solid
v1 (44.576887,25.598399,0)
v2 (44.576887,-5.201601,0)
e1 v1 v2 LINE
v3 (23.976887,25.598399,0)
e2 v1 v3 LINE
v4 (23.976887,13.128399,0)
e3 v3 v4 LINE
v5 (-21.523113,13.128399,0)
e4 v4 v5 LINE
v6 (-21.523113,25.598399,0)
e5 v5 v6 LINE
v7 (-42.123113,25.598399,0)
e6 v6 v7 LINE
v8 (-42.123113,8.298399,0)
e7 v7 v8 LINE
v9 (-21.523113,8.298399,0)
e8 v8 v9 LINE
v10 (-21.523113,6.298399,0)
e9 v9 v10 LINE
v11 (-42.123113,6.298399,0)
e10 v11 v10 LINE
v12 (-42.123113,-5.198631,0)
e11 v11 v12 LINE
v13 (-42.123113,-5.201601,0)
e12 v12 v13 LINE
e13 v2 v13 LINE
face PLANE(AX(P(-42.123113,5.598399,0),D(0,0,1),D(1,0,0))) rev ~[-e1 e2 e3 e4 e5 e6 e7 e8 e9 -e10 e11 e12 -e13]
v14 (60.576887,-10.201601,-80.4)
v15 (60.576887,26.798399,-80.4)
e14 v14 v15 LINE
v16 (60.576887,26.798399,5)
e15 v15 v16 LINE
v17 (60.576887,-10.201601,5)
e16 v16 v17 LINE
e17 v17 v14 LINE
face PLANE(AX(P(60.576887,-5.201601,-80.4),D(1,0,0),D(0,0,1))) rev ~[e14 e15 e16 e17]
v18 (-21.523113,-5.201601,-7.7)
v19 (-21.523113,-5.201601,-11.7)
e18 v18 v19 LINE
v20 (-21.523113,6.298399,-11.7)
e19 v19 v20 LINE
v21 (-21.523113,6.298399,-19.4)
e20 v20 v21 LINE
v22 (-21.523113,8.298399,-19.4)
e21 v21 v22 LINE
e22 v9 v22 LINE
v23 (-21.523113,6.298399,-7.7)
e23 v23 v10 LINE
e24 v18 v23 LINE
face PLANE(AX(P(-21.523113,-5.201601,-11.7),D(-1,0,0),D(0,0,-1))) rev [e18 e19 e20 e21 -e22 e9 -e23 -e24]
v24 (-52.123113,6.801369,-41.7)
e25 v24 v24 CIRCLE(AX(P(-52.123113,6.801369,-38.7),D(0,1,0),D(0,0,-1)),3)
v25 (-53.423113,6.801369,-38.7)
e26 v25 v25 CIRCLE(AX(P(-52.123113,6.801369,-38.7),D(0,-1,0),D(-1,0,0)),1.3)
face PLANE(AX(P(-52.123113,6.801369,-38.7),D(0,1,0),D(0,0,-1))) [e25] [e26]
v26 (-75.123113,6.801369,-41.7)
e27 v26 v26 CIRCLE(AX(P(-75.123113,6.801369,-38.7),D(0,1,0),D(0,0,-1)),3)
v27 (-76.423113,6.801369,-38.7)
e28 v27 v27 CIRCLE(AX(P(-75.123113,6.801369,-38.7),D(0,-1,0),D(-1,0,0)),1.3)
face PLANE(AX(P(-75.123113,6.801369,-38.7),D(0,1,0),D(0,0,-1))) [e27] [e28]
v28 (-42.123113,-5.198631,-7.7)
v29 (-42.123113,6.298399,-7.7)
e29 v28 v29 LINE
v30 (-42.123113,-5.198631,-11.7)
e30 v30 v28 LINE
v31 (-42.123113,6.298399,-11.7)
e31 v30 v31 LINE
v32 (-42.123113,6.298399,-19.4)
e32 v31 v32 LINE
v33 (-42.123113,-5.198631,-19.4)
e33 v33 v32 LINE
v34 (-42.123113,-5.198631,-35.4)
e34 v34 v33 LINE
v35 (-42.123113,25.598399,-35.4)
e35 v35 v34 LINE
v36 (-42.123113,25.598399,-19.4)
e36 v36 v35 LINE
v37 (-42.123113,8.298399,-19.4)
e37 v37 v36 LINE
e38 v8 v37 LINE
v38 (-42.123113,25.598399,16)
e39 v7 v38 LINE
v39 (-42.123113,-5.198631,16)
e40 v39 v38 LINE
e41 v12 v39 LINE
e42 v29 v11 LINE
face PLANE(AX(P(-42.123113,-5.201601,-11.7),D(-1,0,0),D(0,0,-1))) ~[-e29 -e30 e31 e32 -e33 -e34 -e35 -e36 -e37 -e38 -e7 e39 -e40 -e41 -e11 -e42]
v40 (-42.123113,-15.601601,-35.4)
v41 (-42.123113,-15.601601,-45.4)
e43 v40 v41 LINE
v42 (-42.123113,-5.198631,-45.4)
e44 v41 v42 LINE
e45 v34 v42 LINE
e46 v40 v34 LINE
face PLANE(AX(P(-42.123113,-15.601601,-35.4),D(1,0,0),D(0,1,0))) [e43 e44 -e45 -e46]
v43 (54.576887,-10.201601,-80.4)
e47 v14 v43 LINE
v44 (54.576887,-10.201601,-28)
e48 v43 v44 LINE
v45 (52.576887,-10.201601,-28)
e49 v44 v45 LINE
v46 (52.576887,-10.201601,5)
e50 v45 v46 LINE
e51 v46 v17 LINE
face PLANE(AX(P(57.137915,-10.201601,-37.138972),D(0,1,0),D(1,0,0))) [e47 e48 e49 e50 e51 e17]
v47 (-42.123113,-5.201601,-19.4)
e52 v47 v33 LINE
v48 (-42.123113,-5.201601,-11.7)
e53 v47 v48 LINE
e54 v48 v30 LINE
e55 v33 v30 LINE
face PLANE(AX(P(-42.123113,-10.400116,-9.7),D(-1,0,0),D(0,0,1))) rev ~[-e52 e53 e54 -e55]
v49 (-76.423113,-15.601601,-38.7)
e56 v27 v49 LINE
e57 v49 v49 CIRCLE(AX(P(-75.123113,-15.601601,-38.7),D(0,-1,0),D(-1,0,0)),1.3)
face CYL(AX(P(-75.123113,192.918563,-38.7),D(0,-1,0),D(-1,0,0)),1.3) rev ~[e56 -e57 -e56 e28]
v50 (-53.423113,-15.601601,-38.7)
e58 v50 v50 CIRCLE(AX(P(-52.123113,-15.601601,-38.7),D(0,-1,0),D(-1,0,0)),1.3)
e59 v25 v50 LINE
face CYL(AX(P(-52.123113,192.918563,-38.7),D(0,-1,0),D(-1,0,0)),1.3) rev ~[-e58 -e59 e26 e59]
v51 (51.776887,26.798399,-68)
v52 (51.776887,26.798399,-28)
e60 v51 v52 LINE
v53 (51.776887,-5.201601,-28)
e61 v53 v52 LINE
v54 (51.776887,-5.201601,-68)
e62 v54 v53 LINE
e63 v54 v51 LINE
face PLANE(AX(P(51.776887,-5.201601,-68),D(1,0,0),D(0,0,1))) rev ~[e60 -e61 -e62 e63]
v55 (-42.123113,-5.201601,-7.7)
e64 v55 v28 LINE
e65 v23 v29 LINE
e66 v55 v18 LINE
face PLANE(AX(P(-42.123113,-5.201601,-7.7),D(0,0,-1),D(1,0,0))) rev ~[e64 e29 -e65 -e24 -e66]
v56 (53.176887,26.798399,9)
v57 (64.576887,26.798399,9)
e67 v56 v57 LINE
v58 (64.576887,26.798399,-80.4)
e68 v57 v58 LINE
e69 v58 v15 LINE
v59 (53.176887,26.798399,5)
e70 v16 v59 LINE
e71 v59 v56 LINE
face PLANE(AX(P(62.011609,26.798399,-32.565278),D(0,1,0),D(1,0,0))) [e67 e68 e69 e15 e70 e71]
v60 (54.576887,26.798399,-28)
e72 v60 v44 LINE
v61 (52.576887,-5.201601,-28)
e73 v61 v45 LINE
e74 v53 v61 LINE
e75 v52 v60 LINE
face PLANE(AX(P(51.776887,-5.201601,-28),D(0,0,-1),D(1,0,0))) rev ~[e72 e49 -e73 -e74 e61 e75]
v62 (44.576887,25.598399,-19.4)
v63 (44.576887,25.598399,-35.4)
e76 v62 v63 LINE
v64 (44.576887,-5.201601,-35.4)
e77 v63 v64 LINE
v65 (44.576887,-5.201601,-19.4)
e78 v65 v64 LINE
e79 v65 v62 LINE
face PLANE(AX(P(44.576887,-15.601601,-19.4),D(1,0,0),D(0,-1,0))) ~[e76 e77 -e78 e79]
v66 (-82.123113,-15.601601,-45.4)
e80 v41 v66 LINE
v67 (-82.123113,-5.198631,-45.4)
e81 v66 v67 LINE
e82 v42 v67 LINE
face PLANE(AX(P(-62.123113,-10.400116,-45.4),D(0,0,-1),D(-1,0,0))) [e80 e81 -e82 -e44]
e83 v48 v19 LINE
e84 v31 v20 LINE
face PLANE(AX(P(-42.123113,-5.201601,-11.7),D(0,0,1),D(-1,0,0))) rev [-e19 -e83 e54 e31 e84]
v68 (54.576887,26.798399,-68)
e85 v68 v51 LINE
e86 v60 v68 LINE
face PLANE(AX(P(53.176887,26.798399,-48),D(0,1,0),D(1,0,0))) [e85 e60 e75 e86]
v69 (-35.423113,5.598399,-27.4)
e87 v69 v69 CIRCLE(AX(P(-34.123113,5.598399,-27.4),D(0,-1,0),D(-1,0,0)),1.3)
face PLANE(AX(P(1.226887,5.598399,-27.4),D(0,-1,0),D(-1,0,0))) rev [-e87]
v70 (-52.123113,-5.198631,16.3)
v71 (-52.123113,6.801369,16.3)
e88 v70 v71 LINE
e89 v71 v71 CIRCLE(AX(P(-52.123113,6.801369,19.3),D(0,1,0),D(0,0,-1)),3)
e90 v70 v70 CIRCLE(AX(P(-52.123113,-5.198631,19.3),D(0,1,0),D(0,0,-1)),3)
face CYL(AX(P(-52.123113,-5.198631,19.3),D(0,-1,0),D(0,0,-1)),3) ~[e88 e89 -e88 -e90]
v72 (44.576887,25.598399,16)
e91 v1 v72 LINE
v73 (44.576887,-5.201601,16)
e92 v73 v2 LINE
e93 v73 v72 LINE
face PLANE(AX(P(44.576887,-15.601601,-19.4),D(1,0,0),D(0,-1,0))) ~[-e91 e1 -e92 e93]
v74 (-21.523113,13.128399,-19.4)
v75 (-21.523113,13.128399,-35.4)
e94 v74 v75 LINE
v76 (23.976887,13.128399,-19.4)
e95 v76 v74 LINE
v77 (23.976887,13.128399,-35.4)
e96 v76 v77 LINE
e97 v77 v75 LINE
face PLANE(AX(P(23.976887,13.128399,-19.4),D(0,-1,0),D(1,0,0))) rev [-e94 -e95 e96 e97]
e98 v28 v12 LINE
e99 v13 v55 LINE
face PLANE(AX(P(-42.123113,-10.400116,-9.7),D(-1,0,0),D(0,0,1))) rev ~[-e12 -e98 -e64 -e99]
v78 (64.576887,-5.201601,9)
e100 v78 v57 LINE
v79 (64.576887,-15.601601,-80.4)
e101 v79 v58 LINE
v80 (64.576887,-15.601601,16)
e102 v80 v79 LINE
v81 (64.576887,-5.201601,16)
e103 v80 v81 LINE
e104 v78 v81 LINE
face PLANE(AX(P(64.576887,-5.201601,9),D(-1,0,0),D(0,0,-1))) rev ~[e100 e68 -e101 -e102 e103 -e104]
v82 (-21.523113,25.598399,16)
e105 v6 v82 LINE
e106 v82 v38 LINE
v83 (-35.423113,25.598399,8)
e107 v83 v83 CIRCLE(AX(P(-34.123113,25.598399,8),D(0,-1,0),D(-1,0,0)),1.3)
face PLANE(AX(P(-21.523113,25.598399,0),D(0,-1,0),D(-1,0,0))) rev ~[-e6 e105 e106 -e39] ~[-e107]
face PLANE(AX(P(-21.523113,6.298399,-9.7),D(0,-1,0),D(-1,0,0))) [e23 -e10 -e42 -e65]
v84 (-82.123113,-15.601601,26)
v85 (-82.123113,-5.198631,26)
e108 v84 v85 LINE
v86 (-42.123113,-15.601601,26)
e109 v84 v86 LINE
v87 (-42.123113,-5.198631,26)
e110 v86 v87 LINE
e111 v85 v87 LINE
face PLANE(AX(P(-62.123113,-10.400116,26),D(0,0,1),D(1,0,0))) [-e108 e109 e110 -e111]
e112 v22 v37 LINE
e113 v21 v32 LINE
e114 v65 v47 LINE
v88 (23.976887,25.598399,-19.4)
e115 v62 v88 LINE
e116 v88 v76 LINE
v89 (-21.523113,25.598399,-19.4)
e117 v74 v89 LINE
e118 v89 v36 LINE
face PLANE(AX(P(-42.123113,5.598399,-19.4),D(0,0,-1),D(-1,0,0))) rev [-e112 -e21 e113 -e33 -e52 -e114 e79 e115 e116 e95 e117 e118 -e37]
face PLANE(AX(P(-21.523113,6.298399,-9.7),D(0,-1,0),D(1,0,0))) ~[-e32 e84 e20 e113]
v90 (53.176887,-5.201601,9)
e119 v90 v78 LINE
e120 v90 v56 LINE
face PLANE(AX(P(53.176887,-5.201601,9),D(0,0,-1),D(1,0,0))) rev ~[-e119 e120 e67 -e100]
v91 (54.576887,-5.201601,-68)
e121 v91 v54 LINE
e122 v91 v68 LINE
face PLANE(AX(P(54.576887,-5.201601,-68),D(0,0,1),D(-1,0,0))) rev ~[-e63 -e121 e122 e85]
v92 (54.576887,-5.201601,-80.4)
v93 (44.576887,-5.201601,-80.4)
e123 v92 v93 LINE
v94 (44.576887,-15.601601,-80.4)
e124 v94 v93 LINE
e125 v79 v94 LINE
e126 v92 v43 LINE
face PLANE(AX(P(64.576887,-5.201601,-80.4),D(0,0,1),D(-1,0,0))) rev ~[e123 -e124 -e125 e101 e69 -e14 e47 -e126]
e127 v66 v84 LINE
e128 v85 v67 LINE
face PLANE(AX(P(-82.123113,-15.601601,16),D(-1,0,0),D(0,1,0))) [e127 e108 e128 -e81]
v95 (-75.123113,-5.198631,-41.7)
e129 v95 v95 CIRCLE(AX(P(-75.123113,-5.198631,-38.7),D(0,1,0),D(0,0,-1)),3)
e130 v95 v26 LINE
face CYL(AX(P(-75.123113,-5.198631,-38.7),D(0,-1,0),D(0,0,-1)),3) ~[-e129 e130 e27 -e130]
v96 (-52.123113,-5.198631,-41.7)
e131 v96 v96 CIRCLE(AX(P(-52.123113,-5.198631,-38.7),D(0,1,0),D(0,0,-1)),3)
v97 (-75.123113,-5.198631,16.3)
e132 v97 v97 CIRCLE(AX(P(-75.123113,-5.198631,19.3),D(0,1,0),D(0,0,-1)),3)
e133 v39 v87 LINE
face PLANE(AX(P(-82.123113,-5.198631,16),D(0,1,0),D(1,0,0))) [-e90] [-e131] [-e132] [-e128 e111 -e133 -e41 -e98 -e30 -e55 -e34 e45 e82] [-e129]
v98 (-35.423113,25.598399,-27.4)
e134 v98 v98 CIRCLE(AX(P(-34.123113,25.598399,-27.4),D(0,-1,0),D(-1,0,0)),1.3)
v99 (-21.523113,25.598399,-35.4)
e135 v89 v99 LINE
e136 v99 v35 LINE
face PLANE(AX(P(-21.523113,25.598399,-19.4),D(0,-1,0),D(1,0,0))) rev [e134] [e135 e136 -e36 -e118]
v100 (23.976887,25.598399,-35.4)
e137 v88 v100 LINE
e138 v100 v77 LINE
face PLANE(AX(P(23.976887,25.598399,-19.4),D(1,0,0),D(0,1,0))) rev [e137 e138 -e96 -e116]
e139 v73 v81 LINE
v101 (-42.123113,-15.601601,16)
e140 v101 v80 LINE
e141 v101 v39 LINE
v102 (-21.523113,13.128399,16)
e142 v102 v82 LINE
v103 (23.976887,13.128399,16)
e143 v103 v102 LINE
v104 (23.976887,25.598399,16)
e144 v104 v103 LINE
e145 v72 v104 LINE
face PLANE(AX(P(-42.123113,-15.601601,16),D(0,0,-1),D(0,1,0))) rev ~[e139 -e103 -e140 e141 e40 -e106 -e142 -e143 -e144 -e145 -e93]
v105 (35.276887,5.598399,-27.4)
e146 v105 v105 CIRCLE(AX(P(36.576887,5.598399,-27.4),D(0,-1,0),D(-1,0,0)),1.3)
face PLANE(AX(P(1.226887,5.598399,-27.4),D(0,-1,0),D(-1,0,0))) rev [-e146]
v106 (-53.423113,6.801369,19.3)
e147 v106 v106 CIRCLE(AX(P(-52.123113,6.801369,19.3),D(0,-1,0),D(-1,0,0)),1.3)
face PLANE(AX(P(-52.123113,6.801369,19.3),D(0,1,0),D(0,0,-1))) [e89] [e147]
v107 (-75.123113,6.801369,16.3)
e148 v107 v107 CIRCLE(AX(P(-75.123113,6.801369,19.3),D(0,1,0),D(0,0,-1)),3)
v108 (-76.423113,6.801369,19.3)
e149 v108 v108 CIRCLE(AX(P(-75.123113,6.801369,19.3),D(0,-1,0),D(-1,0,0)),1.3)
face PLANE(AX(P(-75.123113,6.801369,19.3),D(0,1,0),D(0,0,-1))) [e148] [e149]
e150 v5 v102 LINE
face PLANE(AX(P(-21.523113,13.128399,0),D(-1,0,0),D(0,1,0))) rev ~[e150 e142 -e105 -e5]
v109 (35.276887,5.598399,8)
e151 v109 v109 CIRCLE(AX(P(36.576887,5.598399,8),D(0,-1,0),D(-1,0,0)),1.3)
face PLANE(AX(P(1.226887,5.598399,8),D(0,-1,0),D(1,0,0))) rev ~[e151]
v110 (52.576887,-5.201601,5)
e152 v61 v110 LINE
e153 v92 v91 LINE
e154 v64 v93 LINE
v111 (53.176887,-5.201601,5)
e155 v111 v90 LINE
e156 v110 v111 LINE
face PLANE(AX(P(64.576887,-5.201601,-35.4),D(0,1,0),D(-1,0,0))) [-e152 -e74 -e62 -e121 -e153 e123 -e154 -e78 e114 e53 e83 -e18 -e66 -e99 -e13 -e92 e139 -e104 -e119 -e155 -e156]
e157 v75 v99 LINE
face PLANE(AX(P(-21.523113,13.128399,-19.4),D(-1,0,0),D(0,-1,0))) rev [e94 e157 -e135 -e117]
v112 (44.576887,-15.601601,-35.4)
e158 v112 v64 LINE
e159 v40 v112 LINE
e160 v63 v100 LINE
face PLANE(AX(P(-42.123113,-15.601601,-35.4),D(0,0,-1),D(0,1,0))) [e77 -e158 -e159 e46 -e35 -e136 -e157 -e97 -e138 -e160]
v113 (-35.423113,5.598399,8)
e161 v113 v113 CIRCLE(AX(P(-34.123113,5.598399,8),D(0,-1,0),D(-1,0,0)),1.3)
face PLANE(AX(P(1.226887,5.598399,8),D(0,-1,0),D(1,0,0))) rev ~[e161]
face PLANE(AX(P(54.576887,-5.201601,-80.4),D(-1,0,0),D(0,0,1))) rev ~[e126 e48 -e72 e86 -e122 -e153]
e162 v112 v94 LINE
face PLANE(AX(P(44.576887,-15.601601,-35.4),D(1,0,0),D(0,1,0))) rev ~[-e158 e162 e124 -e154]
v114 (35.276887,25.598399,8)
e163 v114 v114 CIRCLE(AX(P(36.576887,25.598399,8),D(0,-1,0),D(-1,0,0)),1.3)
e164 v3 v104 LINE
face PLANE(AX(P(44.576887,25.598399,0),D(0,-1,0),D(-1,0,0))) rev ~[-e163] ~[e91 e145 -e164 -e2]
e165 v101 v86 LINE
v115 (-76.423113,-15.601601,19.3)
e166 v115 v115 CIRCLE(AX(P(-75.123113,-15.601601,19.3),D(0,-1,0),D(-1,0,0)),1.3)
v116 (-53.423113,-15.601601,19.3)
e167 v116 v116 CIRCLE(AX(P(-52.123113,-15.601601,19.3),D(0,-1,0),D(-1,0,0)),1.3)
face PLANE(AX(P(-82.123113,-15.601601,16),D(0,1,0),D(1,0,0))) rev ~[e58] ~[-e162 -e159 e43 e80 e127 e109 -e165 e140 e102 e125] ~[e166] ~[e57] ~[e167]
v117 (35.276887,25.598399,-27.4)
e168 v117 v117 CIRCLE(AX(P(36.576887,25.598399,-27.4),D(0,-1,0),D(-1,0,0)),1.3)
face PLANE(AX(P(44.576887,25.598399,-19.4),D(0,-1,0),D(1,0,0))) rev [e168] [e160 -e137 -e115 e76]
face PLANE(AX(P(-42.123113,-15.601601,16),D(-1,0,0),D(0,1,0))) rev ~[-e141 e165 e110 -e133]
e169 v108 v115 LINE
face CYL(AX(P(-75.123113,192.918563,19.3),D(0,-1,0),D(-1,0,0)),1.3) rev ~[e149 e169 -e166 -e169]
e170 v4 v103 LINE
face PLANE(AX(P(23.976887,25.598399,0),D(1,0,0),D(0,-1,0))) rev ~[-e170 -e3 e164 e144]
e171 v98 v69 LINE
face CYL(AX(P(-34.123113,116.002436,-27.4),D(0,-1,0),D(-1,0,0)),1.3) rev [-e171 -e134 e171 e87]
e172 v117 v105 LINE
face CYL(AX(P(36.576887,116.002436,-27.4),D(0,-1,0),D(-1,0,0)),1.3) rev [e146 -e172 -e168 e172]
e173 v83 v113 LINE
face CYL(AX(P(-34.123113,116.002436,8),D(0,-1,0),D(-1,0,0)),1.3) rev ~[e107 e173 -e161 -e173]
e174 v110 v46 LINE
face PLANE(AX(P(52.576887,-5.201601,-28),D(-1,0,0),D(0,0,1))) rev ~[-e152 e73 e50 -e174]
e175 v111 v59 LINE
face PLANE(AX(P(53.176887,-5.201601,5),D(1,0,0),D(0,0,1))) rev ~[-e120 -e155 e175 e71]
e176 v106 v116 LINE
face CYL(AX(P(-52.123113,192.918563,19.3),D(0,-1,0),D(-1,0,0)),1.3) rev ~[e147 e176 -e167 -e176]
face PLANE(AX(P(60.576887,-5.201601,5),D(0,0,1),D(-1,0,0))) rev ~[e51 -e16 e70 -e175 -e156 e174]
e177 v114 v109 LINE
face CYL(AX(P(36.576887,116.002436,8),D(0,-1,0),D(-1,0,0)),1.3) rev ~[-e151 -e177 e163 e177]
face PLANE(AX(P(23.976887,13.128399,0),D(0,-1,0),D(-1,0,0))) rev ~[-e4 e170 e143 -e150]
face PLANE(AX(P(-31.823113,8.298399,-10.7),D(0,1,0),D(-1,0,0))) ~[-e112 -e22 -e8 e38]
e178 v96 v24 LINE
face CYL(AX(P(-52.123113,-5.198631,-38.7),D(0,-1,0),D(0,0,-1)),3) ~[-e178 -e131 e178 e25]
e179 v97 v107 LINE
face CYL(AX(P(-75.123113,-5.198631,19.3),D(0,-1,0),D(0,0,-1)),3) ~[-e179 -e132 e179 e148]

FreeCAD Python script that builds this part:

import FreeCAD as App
import Part
import Sketcher

V = App.Vector

doc = App.newDocument("Part")
body = doc.addObject("PartDesign::Body", "Body")

sketch1 = body.newObject("Sketcher::SketchObject", "Sketch")
sketch1.AttachmentSupport = (doc.getObject("XY_Plane"), [""])
sketch1.MapMode = "FlatFace"
sketch1.addGeometry([
    Part.LineSegment(V(-22, 26, 0), V(-42, 26, 0)),
    Part.LineSegment(V(-42, 26, 0), V(-42, 6, 0)),
    Part.LineSegment(V(-42, 6, 0), V(45, 6, 0)),
    Part.LineSegment(V(45, 6, 0), V(45, 26, 0)),
    Part.LineSegment(V(45, 26, 0), V(24, 26, 0)),
    Part.LineSegment(V(24, 26, 0), V(24, 13, 0)),
    Part.LineSegment(V(24, 13, 0), V(-22, 13, 0)),
    Part.LineSegment(V(-22, 13, 0), V(-22, 26, 0)),
], False)
sketch1.addConstraint([
    Sketcher.Constraint("Coincident", 0, 2, 1, 1),
    Sketcher.Constraint("Coincident", 1, 2, 2, 1),
    Sketcher.Constraint("Coincident", 2, 2, 3, 1),
    Sketcher.Constraint("Coincident", 3, 2, 4, 1),
    Sketcher.Constraint("Coincident", 4, 2, 5, 1),
    Sketcher.Constraint("Coincident", 5, 2, 6, 1),
    Sketcher.Constraint("Coincident", 6, 2, 7, 1),
    Sketcher.Constraint("Coincident", 7, 2, 0, 1),
    Sketcher.Constraint("Horizontal", 0),
    Sketcher.Constraint("Vertical", 1),
    Sketcher.Constraint("Horizontal", 2),
    Sketcher.Constraint("Vertical", 3),
    Sketcher.Constraint("Horizontal", 4),
    Sketcher.Constraint("Vertical", 5),
    Sketcher.Constraint("Horizontal", 6),
    Sketcher.Constraint("Vertical", 7),
    Sketcher.Constraint("Horizontal", 0, 2, 3, 2),
    Sketcher.Constraint("Equal", 0, 4),
    Sketcher.Constraint("DistanceY", 1, 2, 1, 1, 20.0),
    Sketcher.Constraint("DistanceX", 0, 2, 0, 1, 20.6),
    Sketcher.Constraint("DistanceX", 2, 1, 2, 2, 86.7),
    Sketcher.Constraint("DistanceY", 5, 2, 5, 1, 12.47),
    Sketcher.Constraint("DistanceY", -1, 1, 0, 2, 25.598399),
    Sketcher.Constraint("DistanceX", 0, 2, -1, 1, 42.123113),
])
pad1 = body.newObject("PartDesign::Pad", "Pad")
pad1.Profile = sketch1
pad1.Length = 16

sketch2 = body.newObject("Sketcher::SketchObject", "Sketch001")
sketch2.AttachmentSupport = (doc.getObject("XZ_Plane"), [""])
sketch2.MapMode = "FlatFace"
sketch2.AttachmentOffset = App.Placement(V(0, 0, -25.598399), App.Rotation())
sketch2.addGeometry(Part.Circle(V(36.6, 8, 0), V(0, 0, 1), 1.3), False)
sketch2.addConstraint([
    Sketcher.Constraint("Diameter", 0, 2.6),
    Sketcher.Constraint("DistanceY", -1, 1, 0, 3, 8.0),
    Sketcher.Constraint("DistanceX", -1, 1, 0, 3, 36.576887),
])
doc.recompute()
hole = body.newObject("PartDesign::Hole", "Hole")
hole.Profile = sketch2
hole.ThreadType = "None"
hole.Diameter = 2.6
hole.DepthType = "ThroughAll"
hole.Reversed = True

sketch3 = body.newObject("Sketcher::SketchObject", "Sketch002")
sketch3.AttachmentSupport = (doc.getObject("XZ_Plane"), [""])
sketch3.MapMode = "FlatFace"
sketch3.AttachmentOffset = App.Placement(V(0, 0, -25.598399), App.Rotation())
sketch3.addGeometry(Part.Circle(V(-34.1, 8, 0), V(0, 0, 1), 1.3), False)
sketch3.addConstraint([
    Sketcher.Constraint("Diameter", 0, 2.6),
    Sketcher.Constraint("DistanceY", -1, 1, 0, 3, 8.0),
    Sketcher.Constraint("DistanceX", 0, 3, -1, 1, 34.123113),
])
doc.recompute()
hole2 = body.newObject("PartDesign::Hole", "Hole001")
hole2.Profile = sketch3
hole2.ThreadType = "None"
hole2.Diameter = 2.6
hole2.DepthType = "ThroughAll"
hole2.Reversed = True

sketch4 = body.newObject("Sketcher::SketchObject", "Sketch003")
sketch4.AttachmentSupport = (doc.getObject("XZ_Plane"), [""])
sketch4.MapMode = "FlatFace"
sketch4.AttachmentOffset = App.Placement(V(0, 0, -5.598399), App.Rotation())
sketch4.addGeometry([
    Part.LineSegment(V(-42, 16, 0), V(-42, 0, 0)),
    Part.LineSegment(V(-42, 0, 0), V(45, 0, 0)),
    Part.LineSegment(V(45, 0, 0), V(45, 16, 0)),
    Part.LineSegment(V(45, 16, 0), V(-42, 16, 0)),
], False)
sketch4.addConstraint([
    Sketcher.Constraint("Coincident", 0, 2, 1, 1),
    Sketcher.Constraint("Coincident", 1, 2, 2, 1),
    Sketcher.Constraint("Coincident", 2, 2, 3, 1),
    Sketcher.Constraint("Coincident", 3, 2, 0, 1),
    Sketcher.Constraint("Vertical", 0),
    Sketcher.Constraint("Horizontal", 1),
    Sketcher.Constraint("Vertical", 2),
    Sketcher.Constraint("Horizontal", 3),
    Sketcher.Constraint("PointOnObject", 0, 2, -1),
    Sketcher.Constraint("DistanceY", 0, 2, 0, 1, 16.0),
    Sketcher.Constraint("DistanceX", 1, 1, 1, 2, 86.7),
    Sketcher.Constraint("DistanceX", 0, 2, -1, 1, 42.123113),
])
pad2 = body.newObject("PartDesign::Pad", "Pad001")
pad2.Profile = sketch4
pad2.Length = 21.2

sketch5 = body.newObject("Sketcher::SketchObject", "Sketch004")
sketch5.AttachmentSupport = (doc.getObject("XY_Plane"), [""])
sketch5.MapMode = "FlatFace"
sketch5.addGeometry([
    Part.LineSegment(V(45, -5, 0), V(45, -16, 0)),
    Part.LineSegment(V(45, -16, 0), V(-42, -16, 0)),
    Part.LineSegment(V(-42, -16, 0), V(-42, -5, 0)),
    Part.LineSegment(V(-42, -5, 0), V(45, -5, 0)),
], False)
sketch5.addConstraint([
    Sketcher.Constraint("Coincident", 0, 2, 1, 1),
    Sketcher.Constraint("Coincident", 1, 2, 2, 1),
    Sketcher.Constraint("Coincident", 2, 2, 3, 1),
    Sketcher.Constraint("Coincident", 3, 2, 0, 1),
    Sketcher.Constraint("Vertical", 0),
    Sketcher.Constraint("Horizontal", 1),
    Sketcher.Constraint("Vertical", 2),
    Sketcher.Constraint("Horizontal", 3),
    Sketcher.Constraint("DistanceX", 1, 2, 1, 1, 86.7),
    Sketcher.Constraint("DistanceY", 0, 2, 0, 1, 10.4),
    Sketcher.Constraint("DistanceY", 0, 2, -1, 1, 15.601601),
    Sketcher.Constraint("DistanceX", -1, 1, 0, 2, 44.576887),
])
pad3 = body.newObject("PartDesign::Pad", "Pad002")
pad3.Profile = sketch5
pad3.Length = 9.7
pad3.Reversed = True

sketch6 = body.newObject("Sketcher::SketchObject", "Sketch005")
sketch6.AttachmentSupport = (doc.getObject("XZ_Plane"), [""])
sketch6.MapMode = "FlatFace"
sketch6.AttachmentOffset = App.Placement(V(0, 0, 5.201601), App.Rotation())
sketch6.addGeometry([
    Part.LineSegment(V(-42.1, -9.7, 0), V(-42.1, -7.7, 0)),
    Part.LineSegment(V(-42.1, -7.7, 0), V(-21.5, -7.7, 0)),
    Part.LineSegment(V(-21.5, -7.7, 0), V(-21.5, -9.7, 0)),
    Part.LineSegment(V(-21.5, -9.7, 0), V(-42.1, -9.7, 0)),
], False)
sketch6.addConstraint([
    Sketcher.Constraint("Coincident", 0, 2, 1, 1),
    Sketcher.Constraint("Coincident", 1, 2, 2, 1),
    Sketcher.Constraint("Coincident", 2, 2, 3, 1),
    Sketcher.Constraint("Coincident", 3, 2, 0, 1),
    Sketcher.Constraint("Vertical", 0),
    Sketcher.Constraint("Horizontal", 1),
    Sketcher.Constraint("Vertical", 2),
    Sketcher.Constraint("Horizontal", 3),
    Sketcher.Constraint("DistanceY", 0, 1, 0, 2, 2.0),
    Sketcher.Constraint("DistanceX", 1, 1, 1, 2, 20.6),
    Sketcher.Constraint("DistanceY", 0, 2, -1, 1, 7.7),
    Sketcher.Constraint("DistanceX", 0, 2, -1, 1, 42.123113),
])
pad4 = body.newObject("PartDesign::Pad", "Pad003")
pad4.Profile = sketch6
pad4.Length = 13.5
pad4.Reversed = True

sketch7 = body.newObject("Sketcher::SketchObject", "Sketch006")
sketch7.AttachmentSupport = (doc.getObject("XY_Plane"), [""])
sketch7.MapMode = "FlatFace"
sketch7.AttachmentOffset = App.Placement(V(0, 0, -9.7), App.Rotation())
sketch7.addGeometry([
    Part.LineSegment(V(-21.5, 8.3, 0), V(-21.5, 6.3, 0)),
    Part.LineSegment(V(-21.5, 6.3, 0), V(-42.1, 6.3, 0)),
    Part.LineSegment(V(-42.1, 6.3, 0), V(-42.1, 8.3, 0)),
    Part.LineSegment(V(-42.1, 8.3, 0), V(-21.5, 8.3, 0)),
], False)
sketch7.addConstraint([
    Sketcher.Constraint("Coincident", 0, 2, 1, 1),
    Sketcher.Constraint("Coincident", 1, 2, 2, 1),
    Sketcher.Constraint("Coincident", 2, 2, 3, 1),
    Sketcher.Constraint("Coincident", 3, 2, 0, 1),
    Sketcher.Constraint("Vertical", 0),
    Sketcher.Constraint("Horizontal", 1),
    Sketcher.Constraint("Vertical", 2),
    Sketcher.Constraint("Horizontal", 3),
    Sketcher.Constraint("DistanceY", 0, 2, 0, 1, 2.0),
    Sketcher.Constraint("DistanceX", 1, 2, 1, 1, 20.6),
    Sketcher.Constraint("DistanceY", -1, 1, 0, 2, 6.298399),
    Sketcher.Constraint("DistanceX", 0, 2, -1, 1, 21.523113),
])
pad5 = body.newObject("PartDesign::Pad", "Pad004")
pad5.Profile = sketch7
pad5.Length = 10.5
doc.recompute()

datumplane = body.newObject("PartDesign::Plane", "DatumPlane")
datumplane.AttachmentSupport = (doc.getObject("XY_Plane"), [""])
datumplane.MapMode = "FlatFace"
datumplane.AttachmentOffset = App.Placement(V(0, 0, -9.7), App.Rotation())
mirrored = body.newObject("PartDesign::Mirrored", "Mirrored")
mirrored.Originals = [pad1, hole, hole2, pad2, pad3, pad4, pad5]
mirrored.MirrorPlane = (datumplane, [""])
body.Tip = mirrored

sketch8 = body.newObject("Sketcher::SketchObject", "Sketch007")
sketch8.AttachmentSupport = (doc.getObject("YZ_Plane"), [""])
sketch8.MapMode = "FlatFace"
sketch8.AttachmentOffset = App.Placement(V(0, 0, 44.576887), App.Rotation())
sketch8.addGeometry([
    Part.LineSegment(V(-5, 16, 0), V(-16, 16, 0)),
    Part.LineSegment(V(-16, 16, 0), V(-16, -35, 0)),
    Part.LineSegment(V(-16, -35, 0), V(-5, -35, 0)),
    Part.LineSegment(V(-5, -35, 0), V(-5, 16, 0)),
], False)
sketch8.addConstraint([
    Sketcher.Constraint("Coincident", 0, 2, 1, 1),
    Sketcher.Constraint("Coincident", 1, 2, 2, 1),
    Sketcher.Constraint("Coincident", 2, 2, 3, 1),
    Sketcher.Constraint("Coincident", 3, 2, 0, 1),
    Sketcher.Constraint("Horizontal", 0),
    Sketcher.Constraint("Vertical", 1),
    Sketcher.Constraint("Horizontal", 2),
    Sketcher.Constraint("Vertical", 3),
    Sketcher.Constraint("DistanceX", 0, 2, 0, 1, 10.4),
    Sketcher.Constraint("DistanceY", 1, 2, 1, 1, 51.4),
    Sketcher.Constraint("DistanceY", -1, 1, 0, 2, 16.0),
    Sketcher.Constraint("DistanceX", 0, 2, -1, 1, 15.601601),
])
pad6 = body.newObject("PartDesign::Pad", "Pad005")
pad6.Profile = sketch8
pad6.Length = 20

sketch9 = body.newObject("Sketcher::SketchObject", "Sketch008")
sketch9.AttachmentSupport = (doc.getObject("XY_Plane"), [""])
sketch9.MapMode = "FlatFace"
sketch9.AttachmentOffset = App.Placement(V(0, 0, -35.4), App.Rotation())
sketch9.addGeometry([
    Part.LineSegment(V(65, -5, 0), V(65, -16, 0)),
    Part.LineSegment(V(65, -16, 0), V(45, -16, 0)),
    Part.LineSegment(V(45, -16, 0), V(45, -5, 0)),
    Part.LineSegment(V(45, -5, 0), V(65, -5, 0)),
], False)
sketch9.addConstraint([
    Sketcher.Constraint("Coincident", 0, 2, 1, 1),
    Sketcher.Constraint("Coincident", 1, 2, 2, 1),
    Sketcher.Constraint("Coincident", 2, 2, 3, 1),
    Sketcher.Constraint("Coincident", 3, 2, 0, 1),
    Sketcher.Constraint("Vertical", 0),
    Sketcher.Constraint("Horizontal", 1),
    Sketcher.Constraint("Vertical", 2),
    Sketcher.Constraint("Horizontal", 3),
    Sketcher.Constraint("DistanceX", 1, 2, 1, 1, 20.0),
    Sketcher.Constraint("DistanceY", 0, 2, 0, 1, 10.4),
    Sketcher.Constraint("DistanceY", 0, 2, -1, 1, 15.601601),
    Sketcher.Constraint("DistanceX", -1, 1, 0, 2, 64.576887),
])
pad7 = body.newObject("PartDesign::Pad", "Pad006")
pad7.Profile = sketch9
pad7.Length = 45
pad7.Reversed = True

sketch10 = body.newObject("Sketcher::SketchObject", "Sketch009")
sketch10.AttachmentSupport = (doc.getObject("XZ_Plane"), [""])
sketch10.MapMode = "FlatFace"
sketch10.AttachmentOffset = App.Placement(V(0, 0, 5.201601), App.Rotation())
sketch10.addGeometry([
    Part.LineSegment(V(53.2, 9, 0), V(64.6, 9, 0)),
    Part.LineSegment(V(64.6, 9, 0), V(64.6, -80.4, 0)),
    Part.LineSegment(V(64.6, -80.4, 0), V(60.6, -80.4, 0)),
    Part.LineSegment(V(60.6, -80.4, 0), V(60.6, 5, 0)),
    Part.LineSegment(V(60.6, 5, 0), V(53.2, 5, 0)),
    Part.LineSegment(V(53.2, 5, 0), V(53.2, 9, 0)),
    Part.LineSegment(V(54.6, -28, 0), V(54.6, -68, 0)),
    Part.LineSegment(V(54.6, -68, 0), V(51.8, -68, 0)),
    Part.LineSegment(V(51.8, -68, 0), V(51.8, -28, 0)),
    Part.LineSegment(V(51.8, -28, 0), V(54.6, -28, 0)),
], False)
sketch10.addConstraint([
    Sketcher.Constraint("Coincident", 0, 2, 1, 1),
    Sketcher.Constraint("Coincident", 1, 2, 2, 1),
    Sketcher.Constraint("Coincident", 2, 2, 3, 1),
    Sketcher.Constraint("Coincident", 3, 2, 4, 1),
    Sketcher.Constraint("Coincident", 4, 2, 5, 1),
    Sketcher.Constraint("Coincident", 5, 2, 0, 1),
    Sketcher.Constraint("Coincident", 6, 2, 7, 1),
    Sketcher.Constraint("Coincident", 7, 2, 8, 1),
    Sketcher.Constraint("Coincident", 8, 2, 9, 1),
    Sketcher.Constraint("Coincident", 9, 2, 6, 1),
    Sketcher.Constraint("Horizontal", 0),
    Sketcher.Constraint("Vertical", 1),
    Sketcher.Constraint("Horizontal", 2),
    Sketcher.Constraint("Vertical", 3),
    Sketcher.Constraint("Horizontal", 4),
    Sketcher.Constraint("Vertical", 5),
    Sketcher.Constraint("Vertical", 6),
    Sketcher.Constraint("Horizontal", 7),
    Sketcher.Constraint("Vertical", 8),
    Sketcher.Constraint("Horizontal", 9),
    Sketcher.Constraint("Equal", 2, 5),
    Sketcher.Constraint("DistanceX", 2, 2, 2, 1, 4.0),
    Sketcher.Constraint("DistanceY", 6, 2, 6, 1, 40.0),
    Sketcher.Constraint("DistanceX", 0, 1, 0, 2, 11.4),
    Sketcher.Constraint("DistanceX", 7, 2, 7, 1, 2.8),
    Sketcher.Constraint("DistanceY", 1, 2, 1, 1, 89.4),
    Sketcher.Constraint("DistanceY", -1, 1, 0, 2, 9.0),
    Sketcher.Constraint("DistanceY", 6, 2, -1, 1, 68.0),
    Sketcher.Constraint("DistanceX", 6, 2, 2, 2, 6.0),
    Sketcher.Constraint("DistanceX", -1, 1, 0, 2, 64.576887),
])
pad8 = body.newObject("PartDesign::Pad", "Pad007")
pad8.Profile = sketch10
pad8.Length = 32
pad8.Reversed = True

sketch11 = body.newObject("Sketcher::SketchObject", "Sketch010")
sketch11.AttachmentSupport = (doc.getObject("XZ_Plane"), [""])
sketch11.MapMode = "FlatFace"
sketch11.AttachmentOffset = App.Placement(V(0, 0, 5.201601), App.Rotation())
sketch11.addGeometry([
    Part.LineSegment(V(60.6, -80.4, 0), V(54.6, -80.4, 0)),
    Part.LineSegment(V(54.6, -80.4, 0), V(54.6, -28, 0)),
    Part.LineSegment(V(54.6, -28, 0), V(52.6, -28, 0)),
    Part.LineSegment(V(52.6, -28, 0), V(52.6, 5, 0)),
    Part.LineSegment(V(52.6, 5, 0), V(60.6, 5, 0)),
    Part.LineSegment(V(60.6, 5, 0), V(60.6, -80.4, 0)),
], False)
sketch11.addConstraint([
    Sketcher.Constraint("Coincident", 0, 2, 1, 1),
    Sketcher.Constraint("Coincident", 1, 2, 2, 1),
    Sketcher.Constraint("Coincident", 2, 2, 3, 1),
    Sketcher.Constraint("Coincident", 3, 2, 4, 1),
    Sketcher.Constraint("Coincident", 4, 2, 5, 1),
    Sketcher.Constraint("Coincident", 5, 2, 0, 1),
    Sketcher.Constraint("Horizontal", 0),
    Sketcher.Constraint("Vertical", 1),
    Sketcher.Constraint("Horizontal", 2),
    Sketcher.Constraint("Vertical", 3),
    Sketcher.Constraint("Horizontal", 4),
    Sketcher.Constraint("Vertical", 5),
    Sketcher.Constraint("DistanceX", 0, 2, 0, 1, 6.0),
    Sketcher.Constraint("DistanceX", 2, 2, 2, 1, 2.0),
    Sketcher.Constraint("DistanceY", 3, 1, 3, 2, 33.0),
    Sketcher.Constraint("DistanceY", 1, 1, 1, 2, 52.4),
    Sketcher.Constraint("DistanceY", 1, 2, -1, 1, 28.0),
    Sketcher.Constraint("DistanceX", -1, 1, 0, 2, 54.576887),
])
pocket1 = body.newObject("PartDesign::Pocket", "Pocket")
pocket1.Profile = sketch11
pocket1.Length = 5
pocket1.Reversed = True

sketch12 = body.newObject("Sketcher::SketchObject", "Sketch011")
sketch12.AttachmentSupport = (doc.getObject("YZ_Plane"), [""])
sketch12.MapMode = "FlatFace"
sketch12.AttachmentOffset = App.Placement(V(0, 0, -42.123113), App.Rotation())
sketch12.addGeometry([
    Part.LineSegment(V(-5, -35, 0), V(-16, -35, 0)),
    Part.LineSegment(V(-16, -35, 0), V(-16, 16, 0)),
    Part.LineSegment(V(-16, 16, 0), V(-5, 16, 0)),
    Part.LineSegment(V(-5, 16, 0), V(-5, -35, 0)),
], False)
sketch12.addConstraint([
    Sketcher.Constraint("Coincident", 0, 2, 1, 1),
    Sketcher.Constraint("Coincident", 1, 2, 2, 1),
    Sketcher.Constraint("Coincident", 2, 2, 3, 1),
    Sketcher.Constraint("Coincident", 3, 2, 0, 1),
    Sketcher.Constraint("Horizontal", 0),
    Sketcher.Constraint("Vertical", 1),
    Sketcher.Constraint("Horizontal", 2),
    Sketcher.Constraint("Vertical", 3),
    Sketcher.Constraint("DistanceY", 1, 1, 1, 2, 51.4),
    Sketcher.Constraint("DistanceY", -1, 1, 1, 2, 16.0),
    Sketcher.Constraint("DistanceX", 0, 2, 0, 1, 10.40297),
    Sketcher.Constraint("DistanceX", 0, 2, -1, 1, 15.601601),
])
pad9 = body.newObject("PartDesign::Pad", "Pad008")
pad9.Profile = sketch12
pad9.Length = 40
pad9.Reversed = True

sketch13 = body.newObject("Sketcher::SketchObject", "Sketch012")
sketch13.AttachmentSupport = (doc.getObject("XY_Plane"), [""])
sketch13.MapMode = "FlatFace"
sketch13.AttachmentOffset = App.Placement(V(0, 0, -35.4), App.Rotation())
sketch13.addGeometry([
    Part.LineSegment(V(-42, -5, 0), V(-42, -16, 0)),
    Part.LineSegment(V(-42, -16, 0), V(-82, -16, 0)),
    Part.LineSegment(V(-82, -16, 0), V(-82, -5, 0)),
    Part.LineSegment(V(-82, -5, 0), V(-42, -5, 0)),
], False)
sketch13.addConstraint([
    Sketcher.Constraint("Coincident", 0, 2, 1, 1),
    Sketcher.Constraint("Coincident", 1, 2, 2, 1),
    Sketcher.Constraint("Coincident", 2, 2, 3, 1),
    Sketcher.Constraint("Coincident", 3, 2, 0, 1),
    Sketcher.Constraint("Vertical", 0),
    Sketcher.Constraint("Horizontal", 1),
    Sketcher.Constraint("Vertical", 2),
    Sketcher.Constraint("Horizontal", 3),
    Sketcher.Constraint("DistanceX", 1, 2, 1, 1, 40.0),
    Sketcher.Constraint("DistanceY", 0, 2, 0, 1, 10.40297),
    Sketcher.Constraint("DistanceY", 0, 2, -1, 1, 15.601601),
    Sketcher.Constraint("DistanceX", 0, 2, -1, 1, 42.123113),
])
pad10 = body.newObject("PartDesign::Pad", "Pad009")
pad10.Profile = sketch13
pad10.Length = 10
pad10.Reversed = True

sketch14 = body.newObject("Sketcher::SketchObject", "Sketch013")
sketch14.AttachmentSupport = (doc.getObject("XY_Plane"), [""])
sketch14.MapMode = "FlatFace"
sketch14.AttachmentOffset = App.Placement(V(0, 0, 16), App.Rotation())
sketch14.addGeometry([
    Part.LineSegment(V(-82, -5, 0), V(-82, -16, 0)),
    Part.LineSegment(V(-82, -16, 0), V(-42, -16, 0)),
    Part.LineSegment(V(-42, -16, 0), V(-42, -5, 0)),
    Part.LineSegment(V(-42, -5, 0), V(-82, -5, 0)),
], False)
sketch14.addConstraint([
    Sketcher.Constraint("Coincident", 0, 2, 1, 1),
    Sketcher.Constraint("Coincident", 1, 2, 2, 1),
    Sketcher.Constraint("Coincident", 2, 2, 3, 1),
    Sketcher.Constraint("Coincident", 3, 2, 0, 1),
    Sketcher.Constraint("Vertical", 0),
    Sketcher.Constraint("Horizontal", 1),
    Sketcher.Constraint("Vertical", 2),
    Sketcher.Constraint("Horizontal", 3),
    Sketcher.Constraint("DistanceX", 1, 1, 1, 2, 40.0),
    Sketcher.Constraint("DistanceY", 0, 2, 0, 1, 10.40297),
    Sketcher.Constraint("DistanceY", 0, 2, -1, 1, 15.601601),
    Sketcher.Constraint("DistanceX", 0, 2, -1, 1, 82.123113),
])
pad11 = body.newObject("PartDesign::Pad", "Pad010")
pad11.Profile = sketch14
pad11.Length = 10

sketch15 = body.newObject("Sketcher::SketchObject", "Sketch014")
sketch15.AttachmentSupport = (doc.getObject("XZ_Plane"), [""])
sketch15.MapMode = "FlatFace"
sketch15.AttachmentOffset = App.Placement(V(0, 0, 5.198631), App.Rotation())
sketch15.addGeometry([
    Part.Circle(V(-52.1, -38.7, 0), V(0, 0, 1), 3),
    Part.Circle(V(-75.1, -38.7, 0), V(0, 0, 1), 3),
    Part.Circle(V(-52.1, 19.3, 0), V(0, 0, 1), 3),
    Part.Circle(V(-75.1, 19.3, 0), V(0, 0, 1), 3),
], False)
sketch15.addConstraint([
    Sketcher.Constraint("Equal", 0, 1),
    Sketcher.Constraint("Equal", 1, 2),
    Sketcher.Constraint("Equal", 2, 3),
    Sketcher.Constraint("Horizontal", 0, 3, 1, 3),
    Sketcher.Constraint("Horizontal", 2, 3, 3, 3),
    Sketcher.Constraint("Vertical", 0, 3, 2, 3),
    Sketcher.Constraint("Vertical", 1, 3, 3, 3),
    Sketcher.Constraint("Diameter", 0, 6.0),
    Sketcher.Constraint("DistanceX", 1, 3, 0, 3, 23.0),
    Sketcher.Constraint("DistanceY", 0, 3, 2, 3, 58.0),
    Sketcher.Constraint("DistanceY", 0, 3, -1, 1, 38.7),
    Sketcher.Constraint("DistanceX", 0, 3, -1, 1, 52.123113),
])
pad12 = body.newObject("PartDesign::Pad", "Pad011")
pad12.Profile = sketch15
pad12.Length = 12
pad12.Reversed = True

sketch16 = body.newObject("Sketcher::SketchObject", "Sketch015")
sketch16.AttachmentSupport = (doc.getObject("XZ_Plane"), [""])
sketch16.MapMode = "FlatFace"
sketch16.AttachmentOffset = App.Placement(V(0, 0, -6.801369), App.Rotation())
sketch16.addGeometry(Part.Circle(V(-52.1, -38.7, 0), V(0, 0, 1), 1.3), False)
sketch16.addConstraint([
    Sketcher.Constraint("Diameter", 0, 2.6),
    Sketcher.Constraint("DistanceY", 0, 3, -1, 1, 38.7),
    Sketcher.Constraint("DistanceX", 0, 3, -1, 1, 52.123113),
])
doc.recompute()
hole3 = body.newObject("PartDesign::Hole", "Hole002")
hole3.Profile = sketch16
hole3.ThreadType = "None"
hole3.Diameter = 2.6
hole3.DepthType = "ThroughAll"
hole3.Reversed = True

sketch17 = body.newObject("Sketcher::SketchObject", "Sketch016")
sketch17.AttachmentSupport = (doc.getObject("XZ_Plane"), [""])
sketch17.MapMode = "FlatFace"
sketch17.AttachmentOffset = App.Placement(V(0, 0, -6.801369), App.Rotation())
sketch17.addGeometry([
    Part.Circle(V(-52.1, 19.3, 0), V(0, 0, 1), 1.3),
    Part.Circle(V(-75.1, -38.7, 0), V(0, 0, 1), 1.3),
    Part.Circle(V(-75.1, 19.3, 0), V(0, 0, 1), 1.3),
], False)
sketch17.addConstraint([
    Sketcher.Constraint("Equal", 0, 1),
    Sketcher.Constraint("Equal", 1, 2),
    Sketcher.Constraint("Horizontal", 0, 3, 2, 3),
    Sketcher.Constraint("Vertical", 1, 3, 2, 3),
    Sketcher.Constraint("Diameter", 0, 2.6),
    Sketcher.Constraint("DistanceX", 1, 3, 0, 3, 23.0),
    Sketcher.Constraint("DistanceY", 1, 3, 0, 3, 58.0),
    Sketcher.Constraint("DistanceY", -1, 1, 0, 3, 19.3),
    Sketcher.Constraint("DistanceX", 0, 3, -1, 1, 52.123113),
])
doc.recompute()
hole4 = body.newObject("PartDesign::Hole", "Hole003")
hole4.Profile = sketch17
hole4.ThreadType = "None"
hole4.Diameter = 2.6
hole4.DepthType = "ThroughAll"
hole4.Reversed = True

doc.recompute()
